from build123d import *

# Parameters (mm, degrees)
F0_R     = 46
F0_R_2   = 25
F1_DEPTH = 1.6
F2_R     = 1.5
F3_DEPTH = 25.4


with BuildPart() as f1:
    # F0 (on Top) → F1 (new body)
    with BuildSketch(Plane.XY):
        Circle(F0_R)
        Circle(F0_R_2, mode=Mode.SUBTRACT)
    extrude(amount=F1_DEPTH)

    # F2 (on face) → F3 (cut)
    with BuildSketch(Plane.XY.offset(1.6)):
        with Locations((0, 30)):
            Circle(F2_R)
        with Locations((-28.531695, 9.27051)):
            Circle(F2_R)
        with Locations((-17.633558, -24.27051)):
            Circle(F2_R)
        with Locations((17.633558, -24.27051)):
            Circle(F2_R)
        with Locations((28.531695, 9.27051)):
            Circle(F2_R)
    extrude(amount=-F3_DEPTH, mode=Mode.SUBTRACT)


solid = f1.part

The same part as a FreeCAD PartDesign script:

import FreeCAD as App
import Part
import Sketcher

doc = App.newDocument("Part")
body = doc.addObject("PartDesign::Body", "Body")

sketch1 = body.newObject("Sketcher::SketchObject", "Sketch")
sketch1.AttachmentSupport = (doc.getObject("XY_Plane"), [""])
sketch1.MapMode = "FlatFace"
sketch1.addGeometry([
    Part.Circle(App.Vector(0, 0, 0), App.Vector(0, 0, 1), 46),
    Part.Circle(App.Vector(0, 0, 0), App.Vector(0, 0, 1), 25),
], False)
sketch1.addConstraint([
    Sketcher.Constraint("Coincident", 0, 3, -1, 1),
    Sketcher.Constraint("Coincident", 1, 3, -1, 1),
    Sketcher.Constraint("Diameter", 0, 92.0),
    Sketcher.Constraint("Diameter", 1, 50.0),
])
pad1 = body.newObject("PartDesign::Pad", "Pad")
pad1.Profile = sketch1
pad1.Length = 1.6

sketch2 = body.newObject("Sketcher::SketchObject", "Sketch001")
sketch2.AttachmentSupport = (doc.getObject("XY_Plane"), [""])
sketch2.MapMode = "FlatFace"
sketch2.AttachmentOffset = App.Placement(App.Vector(0, 0, 1.6), App.Rotation())
sketch2.addGeometry([
    Part.Circle(App.Vector(0, 30, 0), App.Vector(0, 0, 1), 1.5),
    Part.Circle(App.Vector(-28.531695, 9.27051, 0), App.Vector(0, 0, 1), 1.5),
    Part.Circle(App.Vector(-17.633558, -24.27051, 0), App.Vector(0, 0, 1), 1.5),
    Part.Circle(App.Vector(17.633558, -24.27051, 0), App.Vector(0, 0, 1), 1.5),
    Part.Circle(App.Vector(28.531695, 9.27051, 0), App.Vector(0, 0, 1), 1.5),
], False)
sketch2.addConstraint([
    Sketcher.Constraint("Equal", 0, 1),
    Sketcher.Constraint("Equal", 1, 2),
    Sketcher.Constraint("Equal", 2, 3),
    Sketcher.Constraint("Equal", 3, 4),
    Sketcher.Constraint("Symmetric", 2, 3, 3, 3, -2),
    Sketcher.Constraint("Symmetric", 1, 3, 4, 3, -2),
    Sketcher.Constraint("PointOnObject", 0, 3, -2),
    Sketcher.Constraint("Diameter", 0, 3.0),
    Sketcher.Constraint("DistanceY", -1, 1, 0, 3, 30.0),
    Sketcher.Constraint("DistanceY", -1, 1, 1, 3, 9.27051),
    Sketcher.Constraint("DistanceX", 2, 3, -1, 1, 17.633558),
    Sketcher.Constraint("DistanceY", 2, 3, -1, 1, 24.27051),
    Sketcher.Constraint("DistanceX", 1, 3, 4, 3, 57.06339),
])
pocket1 = body.newObject("PartDesign::Pocket", "Pocket")
pocket1.Profile = sketch2
pocket1.Length = 25.4

doc.recompute()
